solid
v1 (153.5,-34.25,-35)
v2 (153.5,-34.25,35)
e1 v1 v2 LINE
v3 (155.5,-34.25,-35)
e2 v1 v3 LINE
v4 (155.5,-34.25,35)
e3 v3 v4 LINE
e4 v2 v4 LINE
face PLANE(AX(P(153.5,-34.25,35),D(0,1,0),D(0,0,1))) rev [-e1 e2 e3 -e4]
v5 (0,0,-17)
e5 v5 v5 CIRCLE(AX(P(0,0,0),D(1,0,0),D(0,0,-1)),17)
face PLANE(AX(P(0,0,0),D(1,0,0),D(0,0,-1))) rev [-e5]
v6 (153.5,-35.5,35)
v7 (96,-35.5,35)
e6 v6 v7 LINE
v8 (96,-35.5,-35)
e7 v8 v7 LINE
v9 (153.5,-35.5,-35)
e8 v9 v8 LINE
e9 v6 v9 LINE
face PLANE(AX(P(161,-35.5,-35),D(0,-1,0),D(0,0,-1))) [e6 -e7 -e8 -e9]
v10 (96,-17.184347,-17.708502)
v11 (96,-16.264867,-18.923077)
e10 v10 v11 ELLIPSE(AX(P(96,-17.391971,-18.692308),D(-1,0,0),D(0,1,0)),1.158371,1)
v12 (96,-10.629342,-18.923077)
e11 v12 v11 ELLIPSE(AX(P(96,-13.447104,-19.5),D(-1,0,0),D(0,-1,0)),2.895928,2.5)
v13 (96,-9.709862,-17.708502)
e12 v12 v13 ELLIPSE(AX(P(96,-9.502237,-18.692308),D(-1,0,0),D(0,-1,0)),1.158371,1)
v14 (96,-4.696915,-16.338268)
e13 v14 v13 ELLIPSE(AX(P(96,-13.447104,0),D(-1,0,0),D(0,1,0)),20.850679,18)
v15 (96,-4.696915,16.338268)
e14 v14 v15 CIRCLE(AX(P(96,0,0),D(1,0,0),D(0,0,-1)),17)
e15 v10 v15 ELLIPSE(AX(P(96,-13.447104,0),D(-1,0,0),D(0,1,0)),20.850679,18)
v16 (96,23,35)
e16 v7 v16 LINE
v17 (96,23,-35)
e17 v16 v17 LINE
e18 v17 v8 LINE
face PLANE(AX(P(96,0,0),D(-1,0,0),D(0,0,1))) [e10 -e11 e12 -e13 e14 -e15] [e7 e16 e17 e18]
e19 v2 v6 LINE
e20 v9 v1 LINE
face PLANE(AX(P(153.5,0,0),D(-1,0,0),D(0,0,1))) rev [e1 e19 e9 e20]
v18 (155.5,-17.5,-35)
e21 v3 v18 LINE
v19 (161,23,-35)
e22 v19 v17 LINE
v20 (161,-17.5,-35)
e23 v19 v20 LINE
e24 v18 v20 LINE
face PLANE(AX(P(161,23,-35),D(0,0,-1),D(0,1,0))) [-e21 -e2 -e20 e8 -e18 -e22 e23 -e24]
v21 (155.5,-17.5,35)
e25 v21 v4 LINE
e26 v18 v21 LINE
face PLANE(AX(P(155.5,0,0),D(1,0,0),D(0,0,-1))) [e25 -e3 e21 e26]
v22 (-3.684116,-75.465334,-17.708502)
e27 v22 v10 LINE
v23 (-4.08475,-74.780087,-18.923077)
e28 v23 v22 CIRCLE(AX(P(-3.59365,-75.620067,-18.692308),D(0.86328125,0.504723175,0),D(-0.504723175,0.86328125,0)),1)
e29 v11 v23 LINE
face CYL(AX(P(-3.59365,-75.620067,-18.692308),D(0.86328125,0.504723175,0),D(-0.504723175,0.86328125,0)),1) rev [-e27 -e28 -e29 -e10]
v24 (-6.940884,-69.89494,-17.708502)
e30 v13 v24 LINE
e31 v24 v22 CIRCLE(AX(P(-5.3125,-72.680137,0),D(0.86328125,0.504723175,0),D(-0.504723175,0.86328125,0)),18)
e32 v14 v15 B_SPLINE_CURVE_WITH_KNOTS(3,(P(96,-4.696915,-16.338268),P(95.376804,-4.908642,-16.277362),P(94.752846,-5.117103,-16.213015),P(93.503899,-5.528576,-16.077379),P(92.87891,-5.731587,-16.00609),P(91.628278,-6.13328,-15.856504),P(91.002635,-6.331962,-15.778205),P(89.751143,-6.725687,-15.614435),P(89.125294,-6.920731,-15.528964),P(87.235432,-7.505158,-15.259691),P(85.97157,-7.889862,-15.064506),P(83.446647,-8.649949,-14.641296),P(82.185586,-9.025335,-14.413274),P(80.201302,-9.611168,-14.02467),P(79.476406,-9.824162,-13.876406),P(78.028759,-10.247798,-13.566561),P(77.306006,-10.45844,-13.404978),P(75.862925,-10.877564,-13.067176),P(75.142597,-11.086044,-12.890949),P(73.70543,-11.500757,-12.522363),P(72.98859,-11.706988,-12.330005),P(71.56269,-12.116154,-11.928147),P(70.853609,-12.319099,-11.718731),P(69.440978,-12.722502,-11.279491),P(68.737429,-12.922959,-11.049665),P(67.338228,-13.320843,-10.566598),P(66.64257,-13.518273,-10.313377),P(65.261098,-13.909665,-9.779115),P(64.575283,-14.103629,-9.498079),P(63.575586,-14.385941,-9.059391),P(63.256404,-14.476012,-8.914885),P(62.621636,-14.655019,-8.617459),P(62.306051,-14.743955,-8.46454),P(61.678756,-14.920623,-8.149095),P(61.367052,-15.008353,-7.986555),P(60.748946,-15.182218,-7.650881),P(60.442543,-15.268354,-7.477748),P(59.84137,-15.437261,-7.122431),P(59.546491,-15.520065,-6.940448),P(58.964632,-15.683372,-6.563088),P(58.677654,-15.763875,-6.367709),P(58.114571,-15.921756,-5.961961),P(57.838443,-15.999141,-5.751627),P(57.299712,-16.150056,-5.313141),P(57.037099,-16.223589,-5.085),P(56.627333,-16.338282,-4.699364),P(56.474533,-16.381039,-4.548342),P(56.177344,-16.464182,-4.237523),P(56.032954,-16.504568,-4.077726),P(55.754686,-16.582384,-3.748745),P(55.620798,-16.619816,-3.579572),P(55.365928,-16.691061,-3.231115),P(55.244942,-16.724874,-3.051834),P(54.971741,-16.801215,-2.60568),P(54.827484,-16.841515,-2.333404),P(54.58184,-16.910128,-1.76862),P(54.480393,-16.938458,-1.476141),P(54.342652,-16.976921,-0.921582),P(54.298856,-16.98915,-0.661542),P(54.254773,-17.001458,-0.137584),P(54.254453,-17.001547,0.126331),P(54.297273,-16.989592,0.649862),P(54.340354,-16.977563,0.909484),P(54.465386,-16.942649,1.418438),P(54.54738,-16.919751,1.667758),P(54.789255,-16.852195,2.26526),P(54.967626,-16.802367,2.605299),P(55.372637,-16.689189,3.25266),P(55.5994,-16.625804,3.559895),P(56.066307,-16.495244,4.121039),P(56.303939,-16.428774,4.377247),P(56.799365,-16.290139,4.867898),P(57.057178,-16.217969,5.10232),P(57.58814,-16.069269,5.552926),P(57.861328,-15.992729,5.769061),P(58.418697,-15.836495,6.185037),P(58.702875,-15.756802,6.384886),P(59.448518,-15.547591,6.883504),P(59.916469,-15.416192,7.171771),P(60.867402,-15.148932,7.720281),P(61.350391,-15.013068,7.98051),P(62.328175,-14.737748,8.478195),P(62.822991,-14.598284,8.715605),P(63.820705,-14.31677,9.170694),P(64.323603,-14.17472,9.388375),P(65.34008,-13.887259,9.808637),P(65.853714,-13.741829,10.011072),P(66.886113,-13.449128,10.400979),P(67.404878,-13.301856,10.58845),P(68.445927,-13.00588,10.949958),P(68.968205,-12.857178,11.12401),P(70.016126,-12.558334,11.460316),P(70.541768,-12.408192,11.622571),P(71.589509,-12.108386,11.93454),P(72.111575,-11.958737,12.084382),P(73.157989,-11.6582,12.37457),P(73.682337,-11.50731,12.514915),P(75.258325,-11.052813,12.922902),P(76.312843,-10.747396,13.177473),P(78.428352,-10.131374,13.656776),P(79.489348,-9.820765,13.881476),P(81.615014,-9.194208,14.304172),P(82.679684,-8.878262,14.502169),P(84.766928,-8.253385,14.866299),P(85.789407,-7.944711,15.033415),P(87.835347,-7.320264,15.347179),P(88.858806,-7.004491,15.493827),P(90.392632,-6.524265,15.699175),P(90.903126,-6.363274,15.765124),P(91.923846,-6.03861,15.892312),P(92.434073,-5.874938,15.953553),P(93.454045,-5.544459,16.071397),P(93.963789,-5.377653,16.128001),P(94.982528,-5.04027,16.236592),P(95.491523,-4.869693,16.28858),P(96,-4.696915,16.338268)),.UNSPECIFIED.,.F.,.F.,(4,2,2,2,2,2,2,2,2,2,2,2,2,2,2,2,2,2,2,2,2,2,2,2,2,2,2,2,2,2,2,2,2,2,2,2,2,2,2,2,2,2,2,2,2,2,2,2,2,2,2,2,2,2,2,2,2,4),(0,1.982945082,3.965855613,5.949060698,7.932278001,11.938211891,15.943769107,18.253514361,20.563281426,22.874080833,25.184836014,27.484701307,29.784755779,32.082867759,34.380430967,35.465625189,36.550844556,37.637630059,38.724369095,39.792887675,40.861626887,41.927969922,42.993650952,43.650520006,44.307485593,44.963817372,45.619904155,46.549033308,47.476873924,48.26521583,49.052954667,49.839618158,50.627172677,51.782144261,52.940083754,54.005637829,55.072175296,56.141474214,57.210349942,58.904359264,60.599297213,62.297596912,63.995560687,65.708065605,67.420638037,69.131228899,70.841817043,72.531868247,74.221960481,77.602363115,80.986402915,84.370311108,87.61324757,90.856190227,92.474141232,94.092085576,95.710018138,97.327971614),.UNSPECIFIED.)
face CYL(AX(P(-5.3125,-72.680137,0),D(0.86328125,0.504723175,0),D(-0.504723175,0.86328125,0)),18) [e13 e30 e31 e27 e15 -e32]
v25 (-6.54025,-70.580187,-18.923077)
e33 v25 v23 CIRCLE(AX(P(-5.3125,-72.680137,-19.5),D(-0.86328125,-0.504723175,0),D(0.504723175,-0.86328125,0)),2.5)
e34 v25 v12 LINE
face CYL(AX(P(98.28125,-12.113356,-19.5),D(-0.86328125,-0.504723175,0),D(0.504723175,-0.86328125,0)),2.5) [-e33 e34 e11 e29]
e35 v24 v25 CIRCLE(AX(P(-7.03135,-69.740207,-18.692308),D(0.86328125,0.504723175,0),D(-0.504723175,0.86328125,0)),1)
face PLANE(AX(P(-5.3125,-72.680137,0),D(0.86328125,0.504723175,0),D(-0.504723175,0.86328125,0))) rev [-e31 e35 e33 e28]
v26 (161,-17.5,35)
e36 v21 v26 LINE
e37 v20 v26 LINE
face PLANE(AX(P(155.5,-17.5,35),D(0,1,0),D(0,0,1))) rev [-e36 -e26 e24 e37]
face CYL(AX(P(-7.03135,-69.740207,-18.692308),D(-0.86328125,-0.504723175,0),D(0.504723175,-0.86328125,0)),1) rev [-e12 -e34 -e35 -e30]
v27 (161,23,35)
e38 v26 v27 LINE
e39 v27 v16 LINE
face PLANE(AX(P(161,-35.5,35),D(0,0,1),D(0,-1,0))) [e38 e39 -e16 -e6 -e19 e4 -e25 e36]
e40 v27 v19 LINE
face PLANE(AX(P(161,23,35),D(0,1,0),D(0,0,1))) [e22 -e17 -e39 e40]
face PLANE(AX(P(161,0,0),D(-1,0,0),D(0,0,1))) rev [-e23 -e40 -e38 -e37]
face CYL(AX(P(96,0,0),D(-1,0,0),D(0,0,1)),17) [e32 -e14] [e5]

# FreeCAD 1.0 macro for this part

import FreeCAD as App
import Part
import Sketcher
from FreeCAD import Vector
Q = App.Units.Quantity


def edges_at(feature, points):
    """Names of the edges that pass closest to the given points."""
    edges = feature.Shape.Edges
    near = lambda p: min(range(len(edges)), key=lambda i: edges[i].distToShape(Part.Vertex(*p))[0])
    return sorted({f"Edge{near(p) + 1}" for p in points})

doc = App.newDocument("Part")
body = doc.addObject("PartDesign::Body", "Body")

# Sketch on YZ plane
sketch1 = body.newObject("Sketcher::SketchObject", "Sketch")
sketch1.AttachmentSupport = (doc.getObject("YZ_Plane"), [""])
sketch1.MapMode = "FlatFace"
sketch1.addGeometry(Part.Circle(Vector(0, 0, 0), Vector(0, 0, 1), 17), False)
sketch1.addConstraint([
    Sketcher.Constraint("Coincident", 0, 3, -1, 1),
    Sketcher.Constraint("Diameter", 0, Q("34 mm")),
])
pad1 = body.newObject("PartDesign::Pad", "Pad")
pad1.Profile = sketch1
pad1.Length = 96

# Sketch on YZ plane
sketch2 = body.newObject("Sketcher::SketchObject", "Sketch001")
sketch2.AttachmentSupport = (doc.getObject("YZ_Plane"), [""])
sketch2.MapMode = "FlatFace"
sketch2.AttachmentOffset = App.Placement(Vector(0, 0, 96), App.Rotation())
sketch2.addGeometry([
    Part.LineSegment(Vector(23, 35, 0), Vector(-35.5, 35, 0)),
    Part.LineSegment(Vector(-35.5, 35, 0), Vector(-35.5, -35, 0)),
    Part.LineSegment(Vector(-35.5, -35, 0), Vector(23, -35, 0)),
    Part.LineSegment(Vector(23, -35, 0), Vector(23, 35, 0)),
], False)
sketch2.addConstraint([
    Sketcher.Constraint("Coincident", 0, 2, 1, 1),
    Sketcher.Constraint("Coincident", 1, 2, 2, 1),
    Sketcher.Constraint("Coincident", 2, 2, 3, 1),
    Sketcher.Constraint("Coincident", 3, 2, 0, 1),
    Sketcher.Constraint("Horizontal", 0),
    Sketcher.Constraint("Vertical", 1),
    Sketcher.Constraint("Horizontal", 2),
    Sketcher.Constraint("Vertical", 3),
    Sketcher.Constraint("DistanceY", 1, 2, 1, 1, Q("70 mm")),
    Sketcher.Constraint("DistanceX", 0, 2, 0, 1, Q("58.5 mm")),
    Sketcher.Constraint("DistanceY", -1, 1, 0, 2, Q("35 mm")),
    Sketcher.Constraint("DistanceX", -1, 1, 2, 2, Q("23 mm")),
])
pad2 = body.newObject("PartDesign::Pad", "Pad001")
pad2.Profile = sketch2
pad2.Length = 65

# Sketch on an angled plane
sketch3 = body.newObject("Sketcher::SketchObject", "Sketch002")
sketch3.Placement = App.Placement(Vector(88.685287, 51.850448, 0), App.Rotation(Vector(0, 0, -1), Vector(-0.504723175, 0.86328125, 0), Vector(0.86328125, 0.504723175, 0), "ZXY"))
sketch3.addGeometry(Part.Circle(Vector(0, -60.062058, 0), Vector(0, 0, 1), 18), False)
sketch3.addConstraint([
    Sketcher.Constraint("PointOnObject", 0, 3, -2),
    Sketcher.Constraint("Diameter", 0, Q("36 mm")),
    Sketcher.Constraint("DistanceY", 0, 3, -1, 1, Q("60.062058 mm")),
])
pad3 = body.newObject("PartDesign::Pad", "Pad002")
pad3.Profile = sketch3
pad3.Length = 144
pad3.Reversed = True

# Sketch on YZ plane
sketch4 = body.newObject("Sketcher::SketchObject", "Sketch003")
sketch4.AttachmentSupport = (doc.getObject("YZ_Plane"), [""])
sketch4.MapMode = "FlatFace"
sketch4.AttachmentOffset = App.Placement(Vector(0, 0, 161), App.Rotation())
sketch4.addGeometry([
    Part.LineSegment(Vector(-17.5, 35, 0), Vector(-35.5, 35, 0)),
    Part.LineSegment(Vector(-35.5, 35, 0), Vector(-35.5, -35, 0)),
    Part.LineSegment(Vector(-35.5, -35, 0), Vector(-17.5, -35, 0)),
    Part.LineSegment(Vector(-17.5, -35, 0), Vector(-17.5, 35, 0)),
], False)
sketch4.addConstraint([
    Sketcher.Constraint("Coincident", 0, 2, 1, 1),
    Sketcher.Constraint("Coincident", 1, 2, 2, 1),
    Sketcher.Constraint("Coincident", 2, 2, 3, 1),
    Sketcher.Constraint("Coincident", 3, 2, 0, 1),
    Sketcher.Constraint("Horizontal", 0),
    Sketcher.Constraint("Vertical", 1),
    Sketcher.Constraint("Horizontal", 2),
    Sketcher.Constraint("Vertical", 3),
    Sketcher.Constraint("DistanceX", 0, 2, 0, 1, Q("18 mm")),
    Sketcher.Constraint("DistanceY", 1, 2, 1, 1, Q("70 mm")),
    Sketcher.Constraint("DistanceY", -1, 1, 0, 2, Q("35 mm")),
    Sketcher.Constraint("DistanceX", 0, 2, -1, 1, Q("35.5 mm")),
])
pocket1 = body.newObject("PartDesign::Pocket", "Pocket")
pocket1.Profile = sketch4
pocket1.Length = 5.5

# Sketch on YZ plane
sketch5 = body.newObject("Sketcher::SketchObject", "Sketch004")
sketch5.AttachmentSupport = (doc.getObject("YZ_Plane"), [""])
sketch5.MapMode = "FlatFace"
sketch5.AttachmentOffset = App.Placement(Vector(0, 0, 155.5), App.Rotation())
sketch5.addGeometry([
    Part.LineSegment(Vector(-34.25, 35, 0), Vector(-35.5, 35, 0)),
    Part.LineSegment(Vector(-35.5, 35, 0), Vector(-35.5, -35, 0)),
    Part.LineSegment(Vector(-35.5, -35, 0), Vector(-34.25, -35, 0)),
    Part.LineSegment(Vector(-34.25, -35, 0), Vector(-34.25, 35, 0)),
], False)
sketch5.addConstraint([
    Sketcher.Constraint("Coincident", 0, 2, 1, 1),
    Sketcher.Constraint("Coincident", 1, 2, 2, 1),
    Sketcher.Constraint("Coincident", 2, 2, 3, 1),
    Sketcher.Constraint("Coincident", 3, 2, 0, 1),
    Sketcher.Constraint("Horizontal", 0),
    Sketcher.Constraint("Vertical", 1),
    Sketcher.Constraint("Horizontal", 2),
    Sketcher.Constraint("Vertical", 3),
    Sketcher.Constraint("DistanceY", 1, 2, 1, 1, Q("70 mm")),
    Sketcher.Constraint("DistanceY", -1, 1, 0, 2, Q("35 mm")),
    Sketcher.Constraint("DistanceX", 0, 2, 0, 1, Q("1.25 mm")),
    Sketcher.Constraint("DistanceX", 0, 2, -1, 1, Q("35.5 mm")),
])
pocket2 = body.newObject("PartDesign::Pocket", "Pocket001")
pocket2.Profile = sketch5
pocket2.Length = 2

# Sketch on an angled plane
sketch6 = body.newObject("Sketcher::SketchObject", "Sketch005")
sketch6.Placement = App.Placement(Vector(-35.627213, -20.829689, 0), App.Rotation(Vector(0, 0, 1), Vector(-0.504723175, 0.86328125, 0), Vector(-0.86328125, -0.504723175, 0), "ZXY"))
sketch6.addGeometry(Part.Circle(Vector(-19.5, -60.062058, 0), Vector(0, 0, 1), 2.5), False)
sketch6.addConstraint([
    Sketcher.Constraint("Diameter", 0, Q("5 mm")),
    Sketcher.Constraint("DistanceX", 0, 3, -1, 1, Q("19.5 mm")),
    Sketcher.Constraint("DistanceY", 0, 3, -1, 1, Q("60.062058 mm")),
])
pad4 = body.newObject("PartDesign::Pad", "Pad003")
pad4.Profile = sketch6
pad4.Length = 120
pad4.Reversed = True
doc.recompute()

fillet = body.newObject("PartDesign::Fillet", "Fillet")
fillet.Base = (pad4, edges_at(pad4, [(44.86, -41.124, -17.897), (45.828, -45.003, -17.897)]))
fillet.Radius = 1

doc.recompute()
